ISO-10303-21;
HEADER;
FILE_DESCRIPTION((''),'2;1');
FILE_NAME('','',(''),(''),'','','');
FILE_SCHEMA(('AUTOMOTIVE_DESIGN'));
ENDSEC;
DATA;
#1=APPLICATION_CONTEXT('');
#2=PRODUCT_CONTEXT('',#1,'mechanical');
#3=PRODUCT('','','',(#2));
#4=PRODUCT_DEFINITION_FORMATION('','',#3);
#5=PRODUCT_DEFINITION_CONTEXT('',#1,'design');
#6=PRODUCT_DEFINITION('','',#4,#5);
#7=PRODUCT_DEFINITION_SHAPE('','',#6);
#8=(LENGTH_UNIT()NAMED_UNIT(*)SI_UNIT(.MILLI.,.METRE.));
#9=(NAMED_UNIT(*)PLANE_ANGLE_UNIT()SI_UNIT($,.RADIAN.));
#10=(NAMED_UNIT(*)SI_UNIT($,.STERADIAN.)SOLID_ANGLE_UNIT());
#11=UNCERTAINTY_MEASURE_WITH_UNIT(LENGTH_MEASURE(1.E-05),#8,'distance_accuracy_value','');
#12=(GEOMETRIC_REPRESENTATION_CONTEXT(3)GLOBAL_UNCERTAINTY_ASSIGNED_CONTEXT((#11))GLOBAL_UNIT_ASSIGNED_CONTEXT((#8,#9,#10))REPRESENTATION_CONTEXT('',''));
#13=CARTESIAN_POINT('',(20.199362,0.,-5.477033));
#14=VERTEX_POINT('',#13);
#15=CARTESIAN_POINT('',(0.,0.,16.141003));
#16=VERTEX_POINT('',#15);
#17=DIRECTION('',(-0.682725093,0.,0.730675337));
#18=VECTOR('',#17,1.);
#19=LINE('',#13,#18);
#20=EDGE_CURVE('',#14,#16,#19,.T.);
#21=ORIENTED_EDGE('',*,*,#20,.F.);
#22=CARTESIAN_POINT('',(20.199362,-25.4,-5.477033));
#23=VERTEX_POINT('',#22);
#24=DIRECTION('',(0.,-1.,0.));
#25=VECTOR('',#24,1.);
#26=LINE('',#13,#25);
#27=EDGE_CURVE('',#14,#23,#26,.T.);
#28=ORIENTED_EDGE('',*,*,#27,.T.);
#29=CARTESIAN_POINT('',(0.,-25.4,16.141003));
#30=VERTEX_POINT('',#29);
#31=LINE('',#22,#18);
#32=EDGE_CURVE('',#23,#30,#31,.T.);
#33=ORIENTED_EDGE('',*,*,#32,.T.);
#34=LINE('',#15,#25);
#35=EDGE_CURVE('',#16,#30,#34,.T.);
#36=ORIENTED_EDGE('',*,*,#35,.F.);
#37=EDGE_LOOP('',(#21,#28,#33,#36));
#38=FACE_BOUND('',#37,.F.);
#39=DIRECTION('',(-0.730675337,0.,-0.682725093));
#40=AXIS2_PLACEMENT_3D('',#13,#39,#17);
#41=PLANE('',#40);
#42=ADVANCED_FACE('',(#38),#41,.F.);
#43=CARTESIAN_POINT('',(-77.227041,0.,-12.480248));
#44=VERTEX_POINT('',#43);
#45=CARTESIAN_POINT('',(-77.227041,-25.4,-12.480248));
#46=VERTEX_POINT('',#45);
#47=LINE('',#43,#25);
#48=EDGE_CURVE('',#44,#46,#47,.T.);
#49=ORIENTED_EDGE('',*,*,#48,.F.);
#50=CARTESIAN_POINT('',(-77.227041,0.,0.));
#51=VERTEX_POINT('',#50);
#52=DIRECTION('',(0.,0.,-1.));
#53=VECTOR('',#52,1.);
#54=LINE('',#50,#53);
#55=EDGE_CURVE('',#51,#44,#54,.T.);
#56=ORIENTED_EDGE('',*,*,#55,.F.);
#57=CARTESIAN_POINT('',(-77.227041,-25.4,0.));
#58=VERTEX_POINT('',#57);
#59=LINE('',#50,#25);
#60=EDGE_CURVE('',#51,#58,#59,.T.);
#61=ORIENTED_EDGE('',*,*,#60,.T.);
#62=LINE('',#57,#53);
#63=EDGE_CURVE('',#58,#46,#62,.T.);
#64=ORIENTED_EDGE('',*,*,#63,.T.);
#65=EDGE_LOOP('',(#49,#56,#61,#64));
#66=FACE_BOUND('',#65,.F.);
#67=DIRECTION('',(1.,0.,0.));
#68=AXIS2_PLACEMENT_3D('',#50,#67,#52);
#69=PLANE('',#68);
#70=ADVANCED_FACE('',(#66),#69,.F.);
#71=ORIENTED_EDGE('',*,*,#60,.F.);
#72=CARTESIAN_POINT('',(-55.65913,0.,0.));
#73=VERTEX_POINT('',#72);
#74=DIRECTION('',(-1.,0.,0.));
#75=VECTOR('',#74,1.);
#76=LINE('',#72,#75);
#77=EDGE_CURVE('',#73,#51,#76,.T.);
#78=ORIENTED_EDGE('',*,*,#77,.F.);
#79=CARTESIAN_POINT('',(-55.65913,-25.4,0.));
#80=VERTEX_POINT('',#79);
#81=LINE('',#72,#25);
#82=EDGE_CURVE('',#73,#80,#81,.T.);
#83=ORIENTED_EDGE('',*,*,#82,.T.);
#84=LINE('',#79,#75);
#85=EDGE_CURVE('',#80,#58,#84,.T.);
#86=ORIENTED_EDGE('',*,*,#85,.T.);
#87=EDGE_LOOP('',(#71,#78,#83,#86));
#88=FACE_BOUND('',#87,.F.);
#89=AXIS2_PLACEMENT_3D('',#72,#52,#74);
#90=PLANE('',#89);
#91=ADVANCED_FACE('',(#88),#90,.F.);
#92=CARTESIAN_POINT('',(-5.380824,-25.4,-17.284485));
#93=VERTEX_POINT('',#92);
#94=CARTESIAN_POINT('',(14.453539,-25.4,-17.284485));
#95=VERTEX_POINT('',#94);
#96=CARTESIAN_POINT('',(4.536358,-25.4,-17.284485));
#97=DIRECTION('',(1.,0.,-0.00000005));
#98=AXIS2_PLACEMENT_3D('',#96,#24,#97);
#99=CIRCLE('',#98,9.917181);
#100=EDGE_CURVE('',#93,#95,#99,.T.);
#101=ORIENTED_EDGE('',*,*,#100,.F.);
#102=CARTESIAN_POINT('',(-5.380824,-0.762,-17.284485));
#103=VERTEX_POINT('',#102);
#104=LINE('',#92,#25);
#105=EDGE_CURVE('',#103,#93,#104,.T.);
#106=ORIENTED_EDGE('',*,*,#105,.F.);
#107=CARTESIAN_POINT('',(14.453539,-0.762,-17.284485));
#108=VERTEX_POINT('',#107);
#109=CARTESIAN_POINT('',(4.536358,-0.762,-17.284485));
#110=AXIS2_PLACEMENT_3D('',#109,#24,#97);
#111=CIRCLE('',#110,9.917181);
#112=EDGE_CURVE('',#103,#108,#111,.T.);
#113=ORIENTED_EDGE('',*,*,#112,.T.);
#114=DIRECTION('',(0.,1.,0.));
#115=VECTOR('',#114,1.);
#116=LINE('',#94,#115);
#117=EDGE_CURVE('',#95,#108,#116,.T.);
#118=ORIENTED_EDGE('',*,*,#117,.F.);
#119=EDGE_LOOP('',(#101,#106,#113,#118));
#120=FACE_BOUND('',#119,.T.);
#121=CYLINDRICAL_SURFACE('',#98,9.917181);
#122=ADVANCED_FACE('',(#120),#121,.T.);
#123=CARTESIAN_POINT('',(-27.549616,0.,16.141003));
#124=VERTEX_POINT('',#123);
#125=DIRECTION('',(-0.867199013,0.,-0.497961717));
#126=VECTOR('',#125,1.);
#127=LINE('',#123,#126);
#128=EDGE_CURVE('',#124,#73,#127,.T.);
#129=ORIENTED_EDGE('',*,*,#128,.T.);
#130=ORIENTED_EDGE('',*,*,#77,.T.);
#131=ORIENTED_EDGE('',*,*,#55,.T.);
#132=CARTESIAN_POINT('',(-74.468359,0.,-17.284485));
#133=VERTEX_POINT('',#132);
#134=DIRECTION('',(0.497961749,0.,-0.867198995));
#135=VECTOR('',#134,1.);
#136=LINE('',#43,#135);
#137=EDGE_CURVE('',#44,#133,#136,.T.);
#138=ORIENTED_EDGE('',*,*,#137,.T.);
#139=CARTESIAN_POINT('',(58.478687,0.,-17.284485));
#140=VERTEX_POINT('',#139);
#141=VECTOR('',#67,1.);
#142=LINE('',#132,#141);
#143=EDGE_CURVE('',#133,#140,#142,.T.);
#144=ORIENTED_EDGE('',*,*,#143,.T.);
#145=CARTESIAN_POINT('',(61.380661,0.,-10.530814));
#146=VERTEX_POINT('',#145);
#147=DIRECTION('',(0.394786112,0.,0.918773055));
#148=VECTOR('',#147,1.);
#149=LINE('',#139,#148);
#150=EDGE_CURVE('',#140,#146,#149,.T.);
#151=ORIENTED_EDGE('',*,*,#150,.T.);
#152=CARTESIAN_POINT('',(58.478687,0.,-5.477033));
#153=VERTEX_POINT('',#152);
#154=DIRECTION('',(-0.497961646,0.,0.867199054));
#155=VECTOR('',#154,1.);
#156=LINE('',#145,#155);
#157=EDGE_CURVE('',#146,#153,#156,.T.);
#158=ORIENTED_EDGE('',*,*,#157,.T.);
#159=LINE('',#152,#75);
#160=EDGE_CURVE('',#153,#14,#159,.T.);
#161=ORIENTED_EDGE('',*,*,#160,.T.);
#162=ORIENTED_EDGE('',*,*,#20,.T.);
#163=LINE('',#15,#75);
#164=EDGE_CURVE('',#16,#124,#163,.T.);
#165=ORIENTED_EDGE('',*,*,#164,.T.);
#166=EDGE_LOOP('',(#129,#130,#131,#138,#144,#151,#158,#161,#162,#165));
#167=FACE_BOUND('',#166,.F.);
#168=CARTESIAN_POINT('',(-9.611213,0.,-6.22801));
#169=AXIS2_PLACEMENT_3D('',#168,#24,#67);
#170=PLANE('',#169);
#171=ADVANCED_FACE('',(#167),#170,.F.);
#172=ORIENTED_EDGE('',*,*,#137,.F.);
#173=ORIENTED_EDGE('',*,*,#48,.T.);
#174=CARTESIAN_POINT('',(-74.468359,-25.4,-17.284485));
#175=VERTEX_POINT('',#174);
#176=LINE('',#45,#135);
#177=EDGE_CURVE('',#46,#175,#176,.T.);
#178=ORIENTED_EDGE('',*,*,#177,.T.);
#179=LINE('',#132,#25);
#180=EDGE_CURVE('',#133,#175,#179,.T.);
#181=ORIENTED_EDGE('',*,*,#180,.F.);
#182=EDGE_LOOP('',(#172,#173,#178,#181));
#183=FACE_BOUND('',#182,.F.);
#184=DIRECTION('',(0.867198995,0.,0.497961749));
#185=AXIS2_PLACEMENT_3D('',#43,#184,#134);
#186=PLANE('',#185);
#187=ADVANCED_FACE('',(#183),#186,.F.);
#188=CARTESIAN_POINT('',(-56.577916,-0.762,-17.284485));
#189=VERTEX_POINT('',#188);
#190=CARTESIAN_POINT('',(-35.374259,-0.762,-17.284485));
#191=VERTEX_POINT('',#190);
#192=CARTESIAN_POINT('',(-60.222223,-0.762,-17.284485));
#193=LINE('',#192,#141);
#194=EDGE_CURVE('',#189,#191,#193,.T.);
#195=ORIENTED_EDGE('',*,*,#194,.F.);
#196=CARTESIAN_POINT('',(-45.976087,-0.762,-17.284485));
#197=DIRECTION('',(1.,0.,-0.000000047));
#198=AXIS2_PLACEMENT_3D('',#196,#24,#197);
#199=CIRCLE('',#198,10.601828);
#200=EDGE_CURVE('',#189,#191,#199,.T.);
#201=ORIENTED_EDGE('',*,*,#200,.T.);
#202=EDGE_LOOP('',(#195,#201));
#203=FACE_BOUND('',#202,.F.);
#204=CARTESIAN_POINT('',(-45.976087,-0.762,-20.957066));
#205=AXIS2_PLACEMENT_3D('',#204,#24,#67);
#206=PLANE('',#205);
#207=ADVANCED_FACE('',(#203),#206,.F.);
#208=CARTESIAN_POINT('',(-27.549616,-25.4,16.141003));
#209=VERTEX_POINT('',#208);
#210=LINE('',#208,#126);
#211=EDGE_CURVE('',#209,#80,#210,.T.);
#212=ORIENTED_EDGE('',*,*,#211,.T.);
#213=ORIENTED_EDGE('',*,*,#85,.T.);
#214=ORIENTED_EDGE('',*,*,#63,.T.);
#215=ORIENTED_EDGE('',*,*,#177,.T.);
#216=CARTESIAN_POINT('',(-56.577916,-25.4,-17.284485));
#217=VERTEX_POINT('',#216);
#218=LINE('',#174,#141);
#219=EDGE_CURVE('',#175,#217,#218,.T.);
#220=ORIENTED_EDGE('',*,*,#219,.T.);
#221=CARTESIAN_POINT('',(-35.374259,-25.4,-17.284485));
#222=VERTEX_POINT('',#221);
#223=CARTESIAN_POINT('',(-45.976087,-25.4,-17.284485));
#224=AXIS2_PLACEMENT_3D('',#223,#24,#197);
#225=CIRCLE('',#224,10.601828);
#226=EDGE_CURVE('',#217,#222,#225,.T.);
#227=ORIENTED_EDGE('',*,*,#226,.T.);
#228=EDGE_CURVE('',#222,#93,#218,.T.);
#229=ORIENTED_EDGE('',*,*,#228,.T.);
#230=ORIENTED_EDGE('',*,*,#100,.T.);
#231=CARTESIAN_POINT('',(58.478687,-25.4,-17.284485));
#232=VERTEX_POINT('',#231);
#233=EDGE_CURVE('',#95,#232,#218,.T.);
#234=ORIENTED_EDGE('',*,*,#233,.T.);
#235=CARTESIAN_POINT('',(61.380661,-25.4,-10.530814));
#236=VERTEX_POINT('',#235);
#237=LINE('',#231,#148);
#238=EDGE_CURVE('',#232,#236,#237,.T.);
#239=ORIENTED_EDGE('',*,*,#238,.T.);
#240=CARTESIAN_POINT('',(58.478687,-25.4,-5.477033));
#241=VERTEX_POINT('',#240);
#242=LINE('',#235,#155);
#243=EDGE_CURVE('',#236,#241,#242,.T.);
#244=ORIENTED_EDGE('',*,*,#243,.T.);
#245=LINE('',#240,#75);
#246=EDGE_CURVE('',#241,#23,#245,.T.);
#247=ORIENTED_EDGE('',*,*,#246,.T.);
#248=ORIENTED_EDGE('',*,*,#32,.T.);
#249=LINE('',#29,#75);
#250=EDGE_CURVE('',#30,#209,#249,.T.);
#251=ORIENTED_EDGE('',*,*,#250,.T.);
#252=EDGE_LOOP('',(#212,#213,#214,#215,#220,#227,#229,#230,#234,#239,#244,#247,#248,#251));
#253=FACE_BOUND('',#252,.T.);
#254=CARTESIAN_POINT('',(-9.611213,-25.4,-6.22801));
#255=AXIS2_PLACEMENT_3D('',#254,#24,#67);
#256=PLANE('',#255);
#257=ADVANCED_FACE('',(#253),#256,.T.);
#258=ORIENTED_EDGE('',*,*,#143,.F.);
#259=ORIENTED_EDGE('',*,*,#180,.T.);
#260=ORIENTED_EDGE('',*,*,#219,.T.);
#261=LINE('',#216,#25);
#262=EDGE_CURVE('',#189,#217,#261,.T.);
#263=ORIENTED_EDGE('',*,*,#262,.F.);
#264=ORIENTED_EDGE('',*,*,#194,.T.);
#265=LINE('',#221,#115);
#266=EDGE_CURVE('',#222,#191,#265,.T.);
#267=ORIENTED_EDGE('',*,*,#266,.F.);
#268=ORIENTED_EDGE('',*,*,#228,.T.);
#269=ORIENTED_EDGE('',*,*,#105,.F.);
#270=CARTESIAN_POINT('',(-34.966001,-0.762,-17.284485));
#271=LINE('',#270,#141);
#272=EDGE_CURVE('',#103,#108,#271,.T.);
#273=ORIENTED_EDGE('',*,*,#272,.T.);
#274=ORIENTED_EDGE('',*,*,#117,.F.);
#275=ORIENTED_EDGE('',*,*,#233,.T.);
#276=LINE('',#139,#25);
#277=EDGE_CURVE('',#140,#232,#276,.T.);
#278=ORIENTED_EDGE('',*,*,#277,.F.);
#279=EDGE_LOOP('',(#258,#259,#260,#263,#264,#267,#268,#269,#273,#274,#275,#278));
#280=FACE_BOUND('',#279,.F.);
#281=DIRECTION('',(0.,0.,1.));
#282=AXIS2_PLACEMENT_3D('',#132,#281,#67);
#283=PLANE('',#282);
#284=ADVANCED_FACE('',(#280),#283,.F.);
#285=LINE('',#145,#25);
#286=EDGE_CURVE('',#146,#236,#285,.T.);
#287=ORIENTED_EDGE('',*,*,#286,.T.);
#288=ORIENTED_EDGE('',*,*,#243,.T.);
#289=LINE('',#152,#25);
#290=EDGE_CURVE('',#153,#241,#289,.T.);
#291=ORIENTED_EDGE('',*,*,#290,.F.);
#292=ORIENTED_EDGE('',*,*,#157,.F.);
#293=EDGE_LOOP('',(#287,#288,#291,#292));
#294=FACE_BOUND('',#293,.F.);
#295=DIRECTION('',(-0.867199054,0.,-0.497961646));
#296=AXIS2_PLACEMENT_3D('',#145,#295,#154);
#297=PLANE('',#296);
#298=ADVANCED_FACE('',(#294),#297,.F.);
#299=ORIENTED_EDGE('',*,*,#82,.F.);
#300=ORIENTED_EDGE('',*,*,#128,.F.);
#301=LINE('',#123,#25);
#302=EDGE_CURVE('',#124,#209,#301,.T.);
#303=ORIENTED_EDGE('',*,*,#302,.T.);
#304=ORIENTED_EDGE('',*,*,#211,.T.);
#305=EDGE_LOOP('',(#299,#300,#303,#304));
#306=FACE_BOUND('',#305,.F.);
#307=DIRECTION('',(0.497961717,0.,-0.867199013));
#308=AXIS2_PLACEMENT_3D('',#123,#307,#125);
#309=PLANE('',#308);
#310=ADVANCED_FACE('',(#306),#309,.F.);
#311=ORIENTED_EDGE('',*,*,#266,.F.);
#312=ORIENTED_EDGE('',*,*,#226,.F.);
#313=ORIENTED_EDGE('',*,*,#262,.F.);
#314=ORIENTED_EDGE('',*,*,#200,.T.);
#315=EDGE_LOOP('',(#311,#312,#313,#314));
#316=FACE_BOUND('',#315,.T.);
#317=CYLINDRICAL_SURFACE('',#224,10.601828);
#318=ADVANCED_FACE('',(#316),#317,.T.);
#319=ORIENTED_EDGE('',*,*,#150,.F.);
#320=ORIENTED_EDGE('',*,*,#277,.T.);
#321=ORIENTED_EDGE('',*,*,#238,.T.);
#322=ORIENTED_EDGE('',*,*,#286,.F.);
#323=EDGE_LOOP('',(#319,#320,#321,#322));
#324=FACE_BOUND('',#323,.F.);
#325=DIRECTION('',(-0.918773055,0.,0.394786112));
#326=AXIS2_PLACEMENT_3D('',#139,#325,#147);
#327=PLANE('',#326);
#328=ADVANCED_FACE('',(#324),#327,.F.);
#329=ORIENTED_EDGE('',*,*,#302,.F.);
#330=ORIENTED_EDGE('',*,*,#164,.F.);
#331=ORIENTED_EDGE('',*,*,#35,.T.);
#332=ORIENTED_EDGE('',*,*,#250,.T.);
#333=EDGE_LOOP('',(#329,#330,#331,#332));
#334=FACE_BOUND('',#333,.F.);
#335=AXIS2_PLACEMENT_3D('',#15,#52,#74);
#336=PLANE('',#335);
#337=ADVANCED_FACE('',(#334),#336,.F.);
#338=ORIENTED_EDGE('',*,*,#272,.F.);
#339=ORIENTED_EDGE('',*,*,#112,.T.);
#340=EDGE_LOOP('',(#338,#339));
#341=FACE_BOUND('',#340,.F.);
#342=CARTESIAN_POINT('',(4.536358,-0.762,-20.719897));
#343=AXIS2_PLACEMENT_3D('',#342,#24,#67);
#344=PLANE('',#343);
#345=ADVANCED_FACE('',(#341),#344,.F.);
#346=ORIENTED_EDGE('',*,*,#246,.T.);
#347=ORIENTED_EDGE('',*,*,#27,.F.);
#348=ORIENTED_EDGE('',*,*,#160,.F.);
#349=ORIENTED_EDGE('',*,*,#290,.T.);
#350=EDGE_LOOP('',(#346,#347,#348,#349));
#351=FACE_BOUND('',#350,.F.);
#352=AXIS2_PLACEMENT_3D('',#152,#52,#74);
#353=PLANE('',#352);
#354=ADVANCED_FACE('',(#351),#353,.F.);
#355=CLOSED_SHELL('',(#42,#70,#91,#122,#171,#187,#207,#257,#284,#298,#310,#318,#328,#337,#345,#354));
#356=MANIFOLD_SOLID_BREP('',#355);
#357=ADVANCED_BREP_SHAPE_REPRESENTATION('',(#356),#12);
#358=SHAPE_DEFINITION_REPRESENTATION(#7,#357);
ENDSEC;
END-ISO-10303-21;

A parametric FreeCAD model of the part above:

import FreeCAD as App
import Part
import Sketcher

V = App.Vector
Q = App.Units.Quantity


def add_polygon(sketch, points):
    """Adds a closed chain of lines whose ends are joined by coincident constraints."""
    first, n = sketch.GeometryCount, len(points)
    for a, b in zip(points, points[1:] + points[:1]):
        sketch.addGeometry(Part.LineSegment(App.Vector(*a, 0), App.Vector(*b, 0)), False)
    for i in range(n):
        sketch.addConstraint(Sketcher.Constraint("Coincident", first + i, 2, first + (i + 1) % n, 1))

doc = App.newDocument("Part")
body = doc.addObject("PartDesign::Body", "Body")

sketch1 = body.newObject("Sketcher::SketchObject", "Sketch")
sketch1.AttachmentSupport = (doc.getObject("XZ_Plane"), [""])
sketch1.MapMode = "FlatFace"
add_polygon(sketch1, [(-56, 0), (-77, 0), (-77, -12), (-74, -17), (58, -17), (61, -11), (58, -5), (20, -5), (0, 16), (-28, 16)])
sketch1.addConstraint(Sketcher.Constraint("Horizontal", 0))
sketch1.addConstraint(Sketcher.Constraint("Vertical", 1))
sketch1.addConstraint(Sketcher.Constraint("Horizontal", 3))
sketch1.addConstraint(Sketcher.Constraint("Horizontal", 6))
sketch1.addConstraint(Sketcher.Constraint("Horizontal", 8))
sketch1.addConstraint(Sketcher.Constraint("PointOnObject", 0, 2, -1))
sketch1.addConstraint(Sketcher.Constraint("PointOnObject", 7, 2, -2))
sketch1.addConstraint(Sketcher.Constraint("Parallel", 2, 5))
sketch1.addConstraint(Sketcher.Constraint("Perpendicular", 5, 9))
sketch1.addConstraint(Sketcher.Constraint("Vertical", 3, 2, 5, 2))
sketch1.addConstraint(Sketcher.Constraint("DistanceX", 0, 2, 0, 1, Q("21.567911 mm")))
sketch1.addConstraint(Sketcher.Constraint("DistanceX", 6, 2, 4, 2, Q("41.181299 mm")))
sketch1.addConstraint(Sketcher.Constraint("Distance", 4, Q("7.35075 mm")))
sketch1.addConstraint(Sketcher.Constraint("DistanceX", 3, 1, 3, 2, Q("132.947046 mm")))
sketch1.addConstraint(Sketcher.Constraint("DistanceX", 6, 2, 6, 1, Q("38.279325 mm")))
sketch1.addConstraint(Sketcher.Constraint("DistanceX", 8, 2, 8, 1, Q("27.549616 mm")))
sketch1.addConstraint(Sketcher.Constraint("DistanceY", 1, 2, 1, 1, Q("12.480248 mm")))
sketch1.addConstraint(Sketcher.Constraint("DistanceX", 0, 2, -1, 1, Q("77.227041 mm")))
sketch1.addConstraint(Sketcher.Constraint("DistanceX", 2, 2, -1, 1, Q("74.468359 mm")))
sketch1.addConstraint(Sketcher.Constraint("DistanceY", 4, 2, 5, 2, Q("5.053781 mm")))
pad1 = body.newObject("PartDesign::Pad", "Pad")
pad1.Profile = sketch1
pad1.Length = Q("1 in")

sketch2 = body.newObject("Sketcher::SketchObject", "Sketch001")
sketch2.AttachmentSupport = (doc.getObject("XZ_Plane"), [""])
sketch2.MapMode = "FlatFace"
sketch2.AttachmentOffset = App.Placement(V(0, 0, 1 * 25.4), App.Rotation())
sketch2.addGeometry(Part.Circle(V(-46, -17, 0), V(0, 0, 1), 11), False)
sketch2.addGeometry(Part.Circle(V(5, -17, 0), V(0, 0, 1), 10), False)
sketch2.addConstraint(Sketcher.Constraint("Horizontal", 0, 3, 1, 3))
sketch2.addConstraint(Sketcher.Constraint("Diameter", 0, Q("21.203657 mm")))
sketch2.addConstraint(Sketcher.Constraint("Diameter", 1, Q("19.834363 mm")))
sketch2.addConstraint(Sketcher.Constraint("DistanceX", 0, 3, -1, 1, Q("45.976087 mm")))
sketch2.addConstraint(Sketcher.Constraint("DistanceY", 0, 3, -1, 1, Q("17.284485 mm")))
sketch2.addConstraint(Sketcher.Constraint("DistanceX", -1, 1, 1, 3, Q("4.536358 mm")))
pad2 = body.newObject("PartDesign::Pad", "Pad001")
pad2.Profile = sketch2
pad2.Length = Q("0.97 in")
pad2.Reversed = True

doc.recompute()
